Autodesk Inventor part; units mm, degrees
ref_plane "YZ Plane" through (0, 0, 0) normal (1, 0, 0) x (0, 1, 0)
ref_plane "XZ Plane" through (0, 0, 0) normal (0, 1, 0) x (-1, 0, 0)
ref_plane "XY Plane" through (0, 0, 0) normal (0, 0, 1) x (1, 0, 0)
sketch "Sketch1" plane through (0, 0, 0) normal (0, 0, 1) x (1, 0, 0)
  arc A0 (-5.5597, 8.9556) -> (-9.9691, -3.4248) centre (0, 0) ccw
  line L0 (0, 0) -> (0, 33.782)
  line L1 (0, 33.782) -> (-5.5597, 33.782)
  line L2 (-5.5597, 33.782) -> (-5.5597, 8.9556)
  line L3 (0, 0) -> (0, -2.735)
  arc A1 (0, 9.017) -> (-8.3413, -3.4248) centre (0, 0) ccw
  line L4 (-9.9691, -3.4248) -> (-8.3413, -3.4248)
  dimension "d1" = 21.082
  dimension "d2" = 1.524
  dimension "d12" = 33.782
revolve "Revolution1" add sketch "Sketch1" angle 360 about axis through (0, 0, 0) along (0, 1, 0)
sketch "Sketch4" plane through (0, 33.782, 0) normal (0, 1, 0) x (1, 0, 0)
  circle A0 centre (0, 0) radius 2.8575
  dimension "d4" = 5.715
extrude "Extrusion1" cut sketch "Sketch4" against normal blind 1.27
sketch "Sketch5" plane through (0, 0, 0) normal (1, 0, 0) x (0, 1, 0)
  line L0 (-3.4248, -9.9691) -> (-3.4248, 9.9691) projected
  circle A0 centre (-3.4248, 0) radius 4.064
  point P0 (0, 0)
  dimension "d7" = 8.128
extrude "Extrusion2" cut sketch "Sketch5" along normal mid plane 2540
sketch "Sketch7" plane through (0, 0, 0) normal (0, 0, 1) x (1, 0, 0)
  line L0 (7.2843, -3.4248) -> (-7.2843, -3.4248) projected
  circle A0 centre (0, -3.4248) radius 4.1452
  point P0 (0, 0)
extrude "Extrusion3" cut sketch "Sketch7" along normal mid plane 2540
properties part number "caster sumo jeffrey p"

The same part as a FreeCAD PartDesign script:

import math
import FreeCAD as App
import Part
import Sketcher
from FreeCAD import Vector
Q = App.Units.Quantity

doc = App.newDocument("Part")
body = doc.addObject("PartDesign::Body", "Body")

# Sketch on XY plane
sketch1 = body.newObject("Sketcher::SketchObject", "Sketch")
sketch1.AttachmentSupport = (doc.getObject("XY_Plane"), [""])
sketch1.MapMode = "FlatFace"
sketch1.addGeometry([
    Part.LineSegment(Vector(-5.6, 33.8, 0), Vector(-5.6, 9, 0)),  # 0
    Part.ArcOfCircle(Part.Circle(Vector(0, 0, 0), Vector(0, 0, 1), 10.5), math.radians(122), math.radians(199)),  # 1
    Part.LineSegment(Vector(-10, -3.4, 0), Vector(-8.3, -3.4, 0)),  # 2
    Part.ArcOfCircle(Part.Circle(Vector(0, 0, 0), Vector(0, 0, 1), 9), math.radians(90), math.radians(202)),  # 3
    Part.LineSegment(Vector(0, 9, 0), Vector(0, 33.8, 0)),  # 4
    Part.LineSegment(Vector(0, 33.8, 0), Vector(-5.6, 33.8, 0)),  # 5
], False)
sketch1.addConstraint([
    Sketcher.Constraint("Coincident", 0, 2, 1, 1),
    Sketcher.Constraint("Coincident", 1, 2, 2, 1),
    Sketcher.Constraint("Coincident", 2, 2, 3, 2),
    Sketcher.Constraint("Coincident", 3, 1, 4, 1),
    Sketcher.Constraint("Coincident", 4, 2, 5, 1),
    Sketcher.Constraint("Coincident", 5, 2, 0, 1),
    Sketcher.Constraint("Vertical", 0),
    Sketcher.Constraint("Horizontal", 2),
    Sketcher.Constraint("Vertical", 4),
    Sketcher.Constraint("Horizontal", 5),
    Sketcher.Constraint("Coincident", 1, 3, -1, 1),
    Sketcher.Constraint("Coincident", 3, 3, -1, 1),
    Sketcher.Constraint("PointOnObject", 3, 1, -2),
    Sketcher.Constraint("Radius", 1, Q("0.415 in")),
    Sketcher.Constraint("DistanceY", -1, 1, 4, 2, Q("1.33 in")),
    Sketcher.Constraint("Radius", 3, Q("0.355 in")),
    Sketcher.Constraint("DistanceX", 2, 1, 2, 2, Q("1.6278 mm")),
    Sketcher.Constraint("DistanceX", 5, 2, 5, 1, Q("5.5597 mm")),
])
revolution = body.newObject("PartDesign::Revolution", "Revolution")
revolution.Profile = sketch1
revolution.ReferenceAxis = (sketch1, ["V_Axis"])
revolution.Angle = 360

# Sketch on XZ plane
sketch2 = body.newObject("Sketcher::SketchObject", "Sketch001")
sketch2.AttachmentSupport = (doc.getObject("XZ_Plane"), [""])
sketch2.MapMode = "FlatFace"
sketch2.AttachmentOffset = App.Placement(Vector(0, 0, -1.33 * 25.4), App.Rotation())
sketch2.addGeometry(Part.Circle(Vector(0, 0, 0), Vector(0, 0, 1), 2.9), False)
sketch2.addConstraint([
    Sketcher.Constraint("Coincident", 0, 3, -1, 1),
    Sketcher.Constraint("Diameter", 0, Q("0.225 in")),
])
pocket1 = body.newObject("PartDesign::Pocket", "Pocket")
pocket1.Profile = sketch2
pocket1.Length = Q("0.05 in")
pocket1.Reversed = True

# Sketch on YZ plane
sketch3 = body.newObject("Sketcher::SketchObject", "Sketch002")
sketch3.AttachmentSupport = (doc.getObject("YZ_Plane"), [""])
sketch3.MapMode = "FlatFace"
sketch3.addGeometry(Part.Circle(Vector(-3.4, 0, 0), Vector(0, 0, 1), 4.1), False)
sketch3.addConstraint([
    Sketcher.Constraint("PointOnObject", 0, 3, -1),
    Sketcher.Constraint("Diameter", 0, Q("0.32 in")),
    Sketcher.Constraint("DistanceX", 0, 3, -1, 1, Q("3.4248 mm")),
])
pocket2 = body.newObject("PartDesign::Pocket", "Pocket001")
pocket2.Profile = sketch3
pocket2.Length = Q("100 in")
pocket2.Midplane = True

# Sketch on XY plane
sketch4 = body.newObject("Sketcher::SketchObject", "Sketch003")
sketch4.AttachmentSupport = (doc.getObject("XY_Plane"), [""])
sketch4.MapMode = "FlatFace"
sketch4.addGeometry(Part.Circle(Vector(0, -3.4, 0), Vector(0, 0, 1), 4.1), False)
sketch4.addConstraint([
    Sketcher.Constraint("PointOnObject", 0, 3, -2),
    Sketcher.Constraint("Diameter", 0, Q("0.3264 in")),
    Sketcher.Constraint("DistanceY", 0, 3, -1, 1, Q("3.4248 mm")),
])
pocket3 = body.newObject("PartDesign::Pocket", "Pocket002")
pocket3.Profile = sketch4
pocket3.Length = Q("100 in")
pocket3.Midplane = True

doc.recompute()
